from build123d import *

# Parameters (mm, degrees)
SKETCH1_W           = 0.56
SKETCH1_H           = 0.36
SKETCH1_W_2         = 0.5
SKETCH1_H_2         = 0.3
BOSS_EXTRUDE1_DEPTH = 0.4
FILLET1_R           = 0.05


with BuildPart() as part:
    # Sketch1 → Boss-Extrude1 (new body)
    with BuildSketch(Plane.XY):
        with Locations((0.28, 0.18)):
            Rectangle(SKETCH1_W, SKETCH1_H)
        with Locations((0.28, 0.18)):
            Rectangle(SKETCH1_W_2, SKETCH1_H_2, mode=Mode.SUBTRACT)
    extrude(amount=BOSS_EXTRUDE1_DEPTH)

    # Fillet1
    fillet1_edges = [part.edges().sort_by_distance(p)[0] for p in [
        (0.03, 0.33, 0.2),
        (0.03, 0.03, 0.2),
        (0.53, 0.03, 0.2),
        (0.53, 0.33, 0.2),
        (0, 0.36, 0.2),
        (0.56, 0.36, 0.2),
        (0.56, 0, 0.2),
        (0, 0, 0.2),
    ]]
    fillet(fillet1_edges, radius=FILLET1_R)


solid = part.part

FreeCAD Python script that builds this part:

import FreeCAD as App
import Part
import Sketcher
from FreeCAD import Vector
Q = App.Units.Quantity


def edges_at(feature, points):
    """Names of the edges that pass closest to the given points."""
    edges = feature.Shape.Edges
    near = lambda p: min(range(len(edges)), key=lambda i: edges[i].distToShape(Part.Vertex(*p))[0])
    return sorted({f"Edge{near(p) + 1}" for p in points})


def add_polygon(sketch, points):
    """Adds a closed chain of lines whose ends are joined by coincident constraints."""
    first, n = sketch.GeometryCount, len(points)
    for a, b in zip(points, points[1:] + points[:1]):
        sketch.addGeometry(Part.LineSegment(App.Vector(*a, 0), App.Vector(*b, 0)), False)
    for i in range(n):
        sketch.addConstraint(Sketcher.Constraint("Coincident", first + i, 2, first + (i + 1) % n, 1))

doc = App.newDocument("Part")
body = doc.addObject("PartDesign::Body", "Body")

sketch1 = body.newObject("Sketcher::SketchObject", "Sketch")
sketch1.AttachmentSupport = (doc.getObject("XY_Plane"), [""])
sketch1.MapMode = "FlatFace"
add_polygon(sketch1, [(0, 0.36), (0, 0), (0.56, 0), (0.56, 0.36)])
add_polygon(sketch1, [(0.53, 0.03), (0.03, 0.03), (0.03, 0.33), (0.53, 0.33)])
sketch1.addConstraint(Sketcher.Constraint("Vertical", 0))
sketch1.addConstraint(Sketcher.Constraint("Horizontal", 1))
sketch1.addConstraint(Sketcher.Constraint("Vertical", 2))
sketch1.addConstraint(Sketcher.Constraint("Horizontal", 3))
sketch1.addConstraint(Sketcher.Constraint("Horizontal", 4))
sketch1.addConstraint(Sketcher.Constraint("Vertical", 5))
sketch1.addConstraint(Sketcher.Constraint("Horizontal", 6))
sketch1.addConstraint(Sketcher.Constraint("Vertical", 7))
sketch1.addConstraint(Sketcher.Constraint("Coincident", 0, 2, -1, 1))
sketch1.addConstraint(Sketcher.Constraint("DistanceX", 4, 2, 4, 1, Q("0.5 mm")))
sketch1.addConstraint(Sketcher.Constraint("DistanceY", 5, 1, 5, 2, Q("0.3 mm")))
sketch1.addConstraint(Sketcher.Constraint("DistanceX", 1, 1, 1, 2, Q("0.56 mm")))
sketch1.addConstraint(Sketcher.Constraint("DistanceY", 0, 2, 0, 1, Q("0.36 mm")))
sketch1.addConstraint(Sketcher.Constraint("DistanceX", -1, 1, 4, 2, Q("0.03 mm")))
sketch1.addConstraint(Sketcher.Constraint("DistanceY", -1, 1, 4, 2, Q("0.03 mm")))
pad1 = body.newObject("PartDesign::Pad", "Pad")
pad1.Profile = sketch1
pad1.Length = 0.4
doc.recompute()

fillet = body.newObject("PartDesign::Fillet", "Fillet")
fillet.Base = (pad1, edges_at(pad1, [
    (0.03, 0.33, 0.2),
    (0.03, 0.03, 0.2),
    (0.53, 0.03, 0.2),
    (0.53, 0.33, 0.2),
    (0, 0.36, 0.2),
    (0.56, 0.36, 0.2),
    (0.56, 0, 0.2),
    (0, 0, 0.2),
]))
fillet.Radius = 0.05

doc.recompute()
